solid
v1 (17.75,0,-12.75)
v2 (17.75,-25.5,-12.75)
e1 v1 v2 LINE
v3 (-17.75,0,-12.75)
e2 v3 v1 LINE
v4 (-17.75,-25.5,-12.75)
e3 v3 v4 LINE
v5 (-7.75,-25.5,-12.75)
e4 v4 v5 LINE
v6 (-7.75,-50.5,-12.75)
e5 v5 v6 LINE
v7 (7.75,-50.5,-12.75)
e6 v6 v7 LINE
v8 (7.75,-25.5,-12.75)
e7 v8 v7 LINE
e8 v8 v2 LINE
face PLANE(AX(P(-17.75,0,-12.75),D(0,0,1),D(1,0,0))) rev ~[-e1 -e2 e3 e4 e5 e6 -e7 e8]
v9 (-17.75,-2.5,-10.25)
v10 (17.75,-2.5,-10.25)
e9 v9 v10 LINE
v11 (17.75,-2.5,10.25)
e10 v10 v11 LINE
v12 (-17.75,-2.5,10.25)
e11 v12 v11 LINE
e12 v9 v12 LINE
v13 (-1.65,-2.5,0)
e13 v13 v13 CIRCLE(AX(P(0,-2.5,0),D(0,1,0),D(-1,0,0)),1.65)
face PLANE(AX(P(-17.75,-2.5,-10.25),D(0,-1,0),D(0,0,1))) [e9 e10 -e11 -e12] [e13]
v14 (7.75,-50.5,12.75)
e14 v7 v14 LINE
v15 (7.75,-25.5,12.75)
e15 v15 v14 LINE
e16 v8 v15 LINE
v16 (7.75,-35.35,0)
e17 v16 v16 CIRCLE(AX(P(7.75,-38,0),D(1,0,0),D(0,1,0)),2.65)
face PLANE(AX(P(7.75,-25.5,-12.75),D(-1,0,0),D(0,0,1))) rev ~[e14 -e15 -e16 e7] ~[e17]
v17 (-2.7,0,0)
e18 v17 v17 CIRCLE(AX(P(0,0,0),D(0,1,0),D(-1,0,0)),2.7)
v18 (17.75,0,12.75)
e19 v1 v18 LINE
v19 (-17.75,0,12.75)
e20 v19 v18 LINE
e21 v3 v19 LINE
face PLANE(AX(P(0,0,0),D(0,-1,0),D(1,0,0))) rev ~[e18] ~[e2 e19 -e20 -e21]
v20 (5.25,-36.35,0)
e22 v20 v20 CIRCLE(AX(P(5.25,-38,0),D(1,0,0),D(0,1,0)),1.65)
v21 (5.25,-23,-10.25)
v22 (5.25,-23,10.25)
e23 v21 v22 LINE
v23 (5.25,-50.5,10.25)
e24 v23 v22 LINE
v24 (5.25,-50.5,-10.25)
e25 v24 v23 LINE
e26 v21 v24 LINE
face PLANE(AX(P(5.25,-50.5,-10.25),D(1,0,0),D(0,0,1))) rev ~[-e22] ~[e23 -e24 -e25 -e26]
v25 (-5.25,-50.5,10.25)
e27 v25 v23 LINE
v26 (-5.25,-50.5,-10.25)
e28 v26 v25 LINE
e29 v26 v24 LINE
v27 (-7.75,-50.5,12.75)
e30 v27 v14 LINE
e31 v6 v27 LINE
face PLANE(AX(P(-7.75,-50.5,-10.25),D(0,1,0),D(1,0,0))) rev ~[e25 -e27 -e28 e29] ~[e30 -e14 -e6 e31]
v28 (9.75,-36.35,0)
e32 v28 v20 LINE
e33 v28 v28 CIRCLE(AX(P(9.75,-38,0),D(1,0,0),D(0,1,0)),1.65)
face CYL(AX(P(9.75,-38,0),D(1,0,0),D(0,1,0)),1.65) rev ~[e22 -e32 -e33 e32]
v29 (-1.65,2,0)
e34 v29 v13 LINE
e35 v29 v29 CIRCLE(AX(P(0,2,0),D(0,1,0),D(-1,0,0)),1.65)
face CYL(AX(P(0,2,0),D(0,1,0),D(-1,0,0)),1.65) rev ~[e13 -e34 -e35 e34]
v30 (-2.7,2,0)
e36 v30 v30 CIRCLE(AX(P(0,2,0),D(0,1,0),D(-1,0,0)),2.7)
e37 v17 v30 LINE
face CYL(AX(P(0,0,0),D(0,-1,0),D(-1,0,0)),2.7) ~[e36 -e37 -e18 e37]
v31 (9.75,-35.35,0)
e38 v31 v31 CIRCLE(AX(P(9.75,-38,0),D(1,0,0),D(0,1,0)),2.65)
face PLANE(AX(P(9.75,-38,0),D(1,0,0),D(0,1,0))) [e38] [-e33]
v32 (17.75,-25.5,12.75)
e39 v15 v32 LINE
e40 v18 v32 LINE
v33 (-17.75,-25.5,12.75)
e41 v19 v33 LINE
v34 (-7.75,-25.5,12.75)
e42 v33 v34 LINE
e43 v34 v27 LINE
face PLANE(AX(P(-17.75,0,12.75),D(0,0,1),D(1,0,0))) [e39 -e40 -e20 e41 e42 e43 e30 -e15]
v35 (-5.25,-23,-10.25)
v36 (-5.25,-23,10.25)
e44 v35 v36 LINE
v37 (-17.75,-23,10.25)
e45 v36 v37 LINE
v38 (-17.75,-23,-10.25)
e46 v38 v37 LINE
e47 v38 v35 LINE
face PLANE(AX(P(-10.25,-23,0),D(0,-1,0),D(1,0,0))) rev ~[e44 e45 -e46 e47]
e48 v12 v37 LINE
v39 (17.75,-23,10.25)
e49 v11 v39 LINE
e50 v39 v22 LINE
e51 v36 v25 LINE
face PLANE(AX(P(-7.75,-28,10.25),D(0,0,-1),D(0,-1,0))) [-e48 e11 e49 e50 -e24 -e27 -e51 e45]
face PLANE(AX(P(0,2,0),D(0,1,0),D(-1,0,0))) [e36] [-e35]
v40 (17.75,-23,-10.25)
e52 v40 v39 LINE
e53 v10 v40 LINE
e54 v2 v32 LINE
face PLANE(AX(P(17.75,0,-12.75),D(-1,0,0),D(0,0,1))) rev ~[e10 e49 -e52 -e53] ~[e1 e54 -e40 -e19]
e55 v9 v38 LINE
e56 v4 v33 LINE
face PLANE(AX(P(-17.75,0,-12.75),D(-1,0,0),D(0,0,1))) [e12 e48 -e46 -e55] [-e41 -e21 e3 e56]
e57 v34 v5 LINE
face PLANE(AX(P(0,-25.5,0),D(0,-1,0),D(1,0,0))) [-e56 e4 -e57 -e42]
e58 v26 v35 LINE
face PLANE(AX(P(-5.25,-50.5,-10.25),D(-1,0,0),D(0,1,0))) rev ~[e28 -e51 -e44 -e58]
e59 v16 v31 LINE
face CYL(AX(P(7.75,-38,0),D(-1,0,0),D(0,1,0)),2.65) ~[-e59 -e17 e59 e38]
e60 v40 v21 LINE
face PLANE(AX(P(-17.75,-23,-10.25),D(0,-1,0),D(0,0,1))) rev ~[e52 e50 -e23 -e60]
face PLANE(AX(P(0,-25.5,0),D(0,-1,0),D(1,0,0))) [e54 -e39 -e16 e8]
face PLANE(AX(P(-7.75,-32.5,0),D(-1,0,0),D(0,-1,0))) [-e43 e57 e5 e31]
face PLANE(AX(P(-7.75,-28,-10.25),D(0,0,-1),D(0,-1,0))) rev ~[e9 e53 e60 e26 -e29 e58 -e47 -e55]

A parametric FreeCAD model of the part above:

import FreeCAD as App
import Part
import Sketcher

doc = App.newDocument("Part")
body = doc.addObject("PartDesign::Body", "Body")

# Sketch on XZ plane
sketch1 = body.newObject("Sketcher::SketchObject", "Sketch")
sketch1.AttachmentSupport = (doc.getObject("XZ_Plane"), [""])
sketch1.MapMode = "FlatFace"
sketch1.addGeometry(Part.LineSegment(App.Vector(-18, 13, 0), App.Vector(-18, -13, 0)), False)
sketch1.addGeometry(Part.LineSegment(App.Vector(-18, -13, 0), App.Vector(18, -13, 0)), False)
sketch1.addGeometry(Part.LineSegment(App.Vector(18, -13, 0), App.Vector(18, 13, 0)), False)
sketch1.addGeometry(Part.LineSegment(App.Vector(18, 13, 0), App.Vector(-18, 13, 0)), False)
sketch1.addConstraint(Sketcher.Constraint("Coincident", 0, 2, 1, 1))
sketch1.addConstraint(Sketcher.Constraint("Coincident", 1, 2, 2, 1))
sketch1.addConstraint(Sketcher.Constraint("Coincident", 2, 2, 3, 1))
sketch1.addConstraint(Sketcher.Constraint("Coincident", 3, 2, 0, 1))
sketch1.addConstraint(Sketcher.Constraint("Vertical", 0))
sketch1.addConstraint(Sketcher.Constraint("Horizontal", 1))
sketch1.addConstraint(Sketcher.Constraint("Vertical", 2))
sketch1.addConstraint(Sketcher.Constraint("Horizontal", 3))
sketch1.addConstraint(Sketcher.Constraint("Symmetric", 0, 2, 2, 2, -1, 1))
sketch1.addConstraint(Sketcher.Constraint("DistanceX", 1, 1, 1, 2, 35.5))
sketch1.addConstraint(Sketcher.Constraint("DistanceY", 0, 2, 0, 1, 25.5))
pad1 = body.newObject("PartDesign::Pad", "Pad")
pad1.Profile = sketch1
pad1.Length = 25.5

# Sketch on YZ plane
sketch2 = body.newObject("Sketcher::SketchObject", "Sketch001")
sketch2.AttachmentSupport = (doc.getObject("YZ_Plane"), [""])
sketch2.MapMode = "FlatFace"
sketch2.AttachmentOffset = App.Placement(App.Vector(0, 0, -17.75), App.Rotation())
sketch2.addGeometry(Part.LineSegment(App.Vector(-2, 10, 0), App.Vector(-2, -10, 0)), False)
sketch2.addGeometry(Part.LineSegment(App.Vector(-2, -10, 0), App.Vector(-23, -10, 0)), False)
sketch2.addGeometry(Part.LineSegment(App.Vector(-23, -10, 0), App.Vector(-23, 10, 0)), False)
sketch2.addGeometry(Part.LineSegment(App.Vector(-23, 10, 0), App.Vector(-2, 10, 0)), False)
sketch2.addConstraint(Sketcher.Constraint("Coincident", 0, 2, 1, 1))
sketch2.addConstraint(Sketcher.Constraint("Coincident", 1, 2, 2, 1))
sketch2.addConstraint(Sketcher.Constraint("Coincident", 2, 2, 3, 1))
sketch2.addConstraint(Sketcher.Constraint("Coincident", 3, 2, 0, 1))
sketch2.addConstraint(Sketcher.Constraint("Vertical", 0))
sketch2.addConstraint(Sketcher.Constraint("Horizontal", 1))
sketch2.addConstraint(Sketcher.Constraint("Vertical", 2))
sketch2.addConstraint(Sketcher.Constraint("Horizontal", 3))
sketch2.addConstraint(Sketcher.Constraint("Equal", 3, 0))
sketch2.addConstraint(Sketcher.Constraint("DistanceX", 1, 2, 1, 1, 20.5))
sketch2.addConstraint(Sketcher.Constraint("DistanceX", 1, 2, -1, 1, 23.0))
sketch2.addConstraint(Sketcher.Constraint("DistanceY", 0, 2, -1, 1, 10.25))
pocket1 = body.newObject("PartDesign::Pocket", "Pocket")
pocket1.Profile = sketch2
pocket1.Length = 35.5
pocket1.Reversed = True

# Sketch on XZ plane
sketch3 = body.newObject("Sketcher::SketchObject", "Sketch002")
sketch3.AttachmentSupport = (doc.getObject("XZ_Plane"), [""])
sketch3.MapMode = "FlatFace"
sketch3.AttachmentOffset = App.Placement(App.Vector(0, 0, 25.5), App.Rotation())
sketch3.addGeometry(Part.LineSegment(App.Vector(-8, 13, 0), App.Vector(-8, -13, 0)), False)
sketch3.addGeometry(Part.LineSegment(App.Vector(-8, -13, 0), App.Vector(8, -13, 0)), False)
sketch3.addGeometry(Part.LineSegment(App.Vector(8, -13, 0), App.Vector(8, 13, 0)), False)
sketch3.addGeometry(Part.LineSegment(App.Vector(8, 13, 0), App.Vector(-8, 13, 0)), False)
sketch3.addConstraint(Sketcher.Constraint("Coincident", 0, 2, 1, 1))
sketch3.addConstraint(Sketcher.Constraint("Coincident", 1, 2, 2, 1))
sketch3.addConstraint(Sketcher.Constraint("Coincident", 2, 2, 3, 1))
sketch3.addConstraint(Sketcher.Constraint("Coincident", 3, 2, 0, 1))
sketch3.addConstraint(Sketcher.Constraint("Vertical", 0))
sketch3.addConstraint(Sketcher.Constraint("Horizontal", 1))
sketch3.addConstraint(Sketcher.Constraint("Vertical", 2))
sketch3.addConstraint(Sketcher.Constraint("Horizontal", 3))
sketch3.addConstraint(Sketcher.Constraint("Symmetric", 0, 2, 2, 2, -1, 1))
sketch3.addConstraint(Sketcher.Constraint("DistanceX", 1, 1, 1, 2, 15.5))
sketch3.addConstraint(Sketcher.Constraint("DistanceY", 0, 2, 0, 1, 25.5))
pad2 = body.newObject("PartDesign::Pad", "Pad001")
pad2.Profile = sketch3
pad2.Length = 25

# Sketch on XZ plane
sketch4 = body.newObject("Sketcher::SketchObject", "Sketch003")
sketch4.AttachmentSupport = (doc.getObject("XZ_Plane"), [""])
sketch4.MapMode = "FlatFace"
sketch4.AttachmentOffset = App.Placement(App.Vector(0, 0, 50.5), App.Rotation())
sketch4.addGeometry(Part.LineSegment(App.Vector(-15, 10, 0), App.Vector(-15, -10, 0)), False)
sketch4.addGeometry(Part.LineSegment(App.Vector(-15, -10, 0), App.Vector(5, -10, 0)), False)
sketch4.addGeometry(Part.LineSegment(App.Vector(5, -10, 0), App.Vector(5, 10, 0)), False)
sketch4.addGeometry(Part.LineSegment(App.Vector(5, 10, 0), App.Vector(-15, 10, 0)), False)
sketch4.addConstraint(Sketcher.Constraint("Coincident", 0, 2, 1, 1))
sketch4.addConstraint(Sketcher.Constraint("Coincident", 1, 2, 2, 1))
sketch4.addConstraint(Sketcher.Constraint("Coincident", 2, 2, 3, 1))
sketch4.addConstraint(Sketcher.Constraint("Coincident", 3, 2, 0, 1))
sketch4.addConstraint(Sketcher.Constraint("Vertical", 0))
sketch4.addConstraint(Sketcher.Constraint("Horizontal", 1))
sketch4.addConstraint(Sketcher.Constraint("Vertical", 2))
sketch4.addConstraint(Sketcher.Constraint("Horizontal", 3))
sketch4.addConstraint(Sketcher.Constraint("Equal", 3, 0))
sketch4.addConstraint(Sketcher.Constraint("DistanceX", 1, 1, 1, 2, 20.5))
sketch4.addConstraint(Sketcher.Constraint("DistanceX", 0, 2, -1, 1, 15.25))
sketch4.addConstraint(Sketcher.Constraint("DistanceY", 0, 2, -1, 1, 10.25))
pocket2 = body.newObject("PartDesign::Pocket", "Pocket001")
pocket2.Profile = sketch4
pocket2.Length = 38

# Sketch on YZ plane
sketch5 = body.newObject("Sketcher::SketchObject", "Sketch004")
sketch5.AttachmentSupport = (doc.getObject("YZ_Plane"), [""])
sketch5.MapMode = "FlatFace"
sketch5.AttachmentOffset = App.Placement(App.Vector(0, 0, 7.75), App.Rotation())
sketch5.addGeometry(Part.Circle(App.Vector(-38, 0, 0), App.Vector(0, 0, 1), 2.6), False)
sketch5.addConstraint(Sketcher.Constraint("PointOnObject", 0, 3, -1))
sketch5.addConstraint(Sketcher.Constraint("Diameter", 0, 5.3))
sketch5.addConstraint(Sketcher.Constraint("DistanceX", 0, 3, -1, 1, 38.0))
pad3 = body.newObject("PartDesign::Pad", "Pad002")
pad3.Profile = sketch5
pad3.Length = 2

# Sketch on YZ plane
sketch6 = body.newObject("Sketcher::SketchObject", "Sketch005")
sketch6.AttachmentSupport = (doc.getObject("YZ_Plane"), [""])
sketch6.MapMode = "FlatFace"
sketch6.AttachmentOffset = App.Placement(App.Vector(0, 0, 9.75), App.Rotation())
sketch6.addGeometry(Part.Circle(App.Vector(-38, 0, 0), App.Vector(0, 0, 1), 1.6), False)
sketch6.addConstraint(Sketcher.Constraint("PointOnObject", 0, 3, -1))
sketch6.addConstraint(Sketcher.Constraint("Diameter", 0, 3.3))
sketch6.addConstraint(Sketcher.Constraint("DistanceX", 0, 3, -1, 1, 38.0))
pocket3 = body.newObject("PartDesign::Pocket", "Pocket002")
pocket3.Profile = sketch6
pocket3.Type = "ThroughAll"

# Sketch on XZ plane
sketch7 = body.newObject("Sketcher::SketchObject", "Sketch006")
sketch7.AttachmentSupport = (doc.getObject("XZ_Plane"), [""])
sketch7.MapMode = "FlatFace"
sketch7.addGeometry(Part.Circle(App.Vector(0, 0, 0), App.Vector(0, 0, 1), 2.7), False)
sketch7.addConstraint(Sketcher.Constraint("Coincident", 0, 3, -1, 1))
sketch7.addConstraint(Sketcher.Constraint("Diameter", 0, 5.4))
pad4 = body.newObject("PartDesign::Pad", "Pad003")
pad4.Profile = sketch7
pad4.Length = 2
pad4.Reversed = True

# Sketch on XZ plane
sketch8 = body.newObject("Sketcher::SketchObject", "Sketch007")
sketch8.AttachmentSupport = (doc.getObject("XZ_Plane"), [""])
sketch8.MapMode = "FlatFace"
sketch8.AttachmentOffset = App.Placement(App.Vector(0, 0, -2), App.Rotation())
sketch8.addGeometry(Part.Circle(App.Vector(0, 0, 0), App.Vector(0, 0, 1), 1.6), False)
sketch8.addConstraint(Sketcher.Constraint("Coincident", 0, 3, -1, 1))
sketch8.addConstraint(Sketcher.Constraint("Diameter", 0, 3.3))
pocket4 = body.newObject("PartDesign::Pocket", "Pocket003")
pocket4.Profile = sketch8
pocket4.Length = 5.5
pocket4.Reversed = True

# Sketch on XY plane
sketch9 = body.newObject("Sketcher::SketchObject", "Sketch008")
sketch9.AttachmentSupport = (doc.getObject("XY_Plane"), [""])
sketch9.MapMode = "FlatFace"
sketch9.AttachmentOffset = App.Placement(App.Vector(0, 0, -10.25), App.Rotation())
sketch9.addGeometry(Part.LineSegment(App.Vector(-7.8, -25.5, 0), App.Vector(-7.8, -50.5, 0)), False)
sketch9.addGeometry(Part.LineSegment(App.Vector(-7.8, -50.5, 0), App.Vector(-5.2, -50.5, 0)), False)
sketch9.addGeometry(Part.LineSegment(App.Vector(-5.2, -50.5, 0), App.Vector(-5.2, -25.5, 0)), False)
sketch9.addGeometry(Part.LineSegment(App.Vector(-5.2, -25.5, 0), App.Vector(-7.8, -25.5, 0)), False)
sketch9.addConstraint(Sketcher.Constraint("Coincident", 0, 2, 1, 1))
sketch9.addConstraint(Sketcher.Constraint("Coincident", 1, 2, 2, 1))
sketch9.addConstraint(Sketcher.Constraint("Coincident", 2, 2, 3, 1))
sketch9.addConstraint(Sketcher.Constraint("Coincident", 3, 2, 0, 1))
sketch9.addConstraint(Sketcher.Constraint("Vertical", 0))
sketch9.addConstraint(Sketcher.Constraint("Horizontal", 1))
sketch9.addConstraint(Sketcher.Constraint("Vertical", 2))
sketch9.addConstraint(Sketcher.Constraint("Horizontal", 3))
sketch9.addConstraint(Sketcher.Constraint("DistanceY", 0, 2, 0, 1, 25.0))
sketch9.addConstraint(Sketcher.Constraint("DistanceX", 1, 1, 1, 2, 2.5))
sketch9.addConstraint(Sketcher.Constraint("DistanceY", 0, 2, -1, 1, 50.5))
sketch9.addConstraint(Sketcher.Constraint("DistanceX", 0, 2, -1, 1, 7.75))
pad5 = body.newObject("PartDesign::Pad", "Pad004")
pad5.Profile = sketch9
pad5.Length = 20.5

# Sketch on YZ plane
sketch10 = body.newObject("Sketcher::SketchObject", "Sketch009")
sketch10.AttachmentSupport = (doc.getObject("YZ_Plane"), [""])
sketch10.MapMode = "FlatFace"
sketch10.AttachmentOffset = App.Placement(App.Vector(0, 0, -7.75), App.Rotation())
sketch10.addGeometry(Part.LineSegment(App.Vector(-28, 10, 0), App.Vector(-28, -10, 0)), False)
sketch10.addGeometry(Part.LineSegment(App.Vector(-28, -10, 0), App.Vector(-48, -10, 0)), False)
sketch10.addGeometry(Part.LineSegment(App.Vector(-48, -10, 0), App.Vector(-48, 10, 0)), False)
sketch10.addGeometry(Part.LineSegment(App.Vector(-48, 10, 0), App.Vector(-28, 10, 0)), False)
sketch10.addConstraint(Sketcher.Constraint("Coincident", 0, 2, 1, 1))
sketch10.addConstraint(Sketcher.Constraint("Coincident", 1, 2, 2, 1))
sketch10.addConstraint(Sketcher.Constraint("Coincident", 2, 2, 3, 1))
sketch10.addConstraint(Sketcher.Constraint("Coincident", 3, 2, 0, 1))
sketch10.addConstraint(Sketcher.Constraint("Vertical", 0))
sketch10.addConstraint(Sketcher.Constraint("Horizontal", 1))
sketch10.addConstraint(Sketcher.Constraint("Vertical", 2))
sketch10.addConstraint(Sketcher.Constraint("Horizontal", 3))
sketch10.addConstraint(Sketcher.Constraint("DistanceX", 1, 2, 1, 1, 20.0))
sketch10.addConstraint(Sketcher.Constraint("DistanceY", 0, 2, 0, 1, 20.5))
sketch10.addConstraint(Sketcher.Constraint("DistanceX", 0, 2, -1, 1, 28.0))
sketch10.addConstraint(Sketcher.Constraint("DistanceY", 0, 2, -1, 1, 10.25))
pocket5 = body.newObject("PartDesign::Pocket", "Pocket004")
pocket5.Profile = sketch10
pocket5.Length = 2.5
pocket5.Reversed = True

# Sketch on XY plane
sketch11 = body.newObject("Sketcher::SketchObject", "Sketch010")
sketch11.AttachmentSupport = (doc.getObject("XY_Plane"), [""])
sketch11.MapMode = "FlatFace"
sketch11.AttachmentOffset = App.Placement(App.Vector(0, 0, -10.25), App.Rotation())
sketch11.addGeometry(Part.LineSegment(App.Vector(-7.8, -37, 0), App.Vector(-7.8, -39.5, 0)), False)
sketch11.addGeometry(Part.LineSegment(App.Vector(-7.8, -39.5, 0), App.Vector(-5.2, -39.5, 0)), False)
sketch11.addGeometry(Part.LineSegment(App.Vector(-5.2, -39.5, 0), App.Vector(-5.2, -37, 0)), False)
sketch11.addGeometry(Part.LineSegment(App.Vector(-5.2, -37, 0), App.Vector(-7.8, -37, 0)), False)
sketch11.addConstraint(Sketcher.Constraint("Coincident", 0, 2, 1, 1))
sketch11.addConstraint(Sketcher.Constraint("Coincident", 1, 2, 2, 1))
sketch11.addConstraint(Sketcher.Constraint("Coincident", 2, 2, 3, 1))
sketch11.addConstraint(Sketcher.Constraint("Coincident", 3, 2, 0, 1))
sketch11.addConstraint(Sketcher.Constraint("Vertical", 0))
sketch11.addConstraint(Sketcher.Constraint("Horizontal", 1))
sketch11.addConstraint(Sketcher.Constraint("Vertical", 2))
sketch11.addConstraint(Sketcher.Constraint("Horizontal", 3))
sketch11.addConstraint(Sketcher.Constraint("Equal", 3, 0))
sketch11.addConstraint(Sketcher.Constraint("DistanceX", 1, 1, 1, 2, 2.5))
sketch11.addConstraint(Sketcher.Constraint("DistanceY", 2, 2, -1, 1, 37.0))
sketch11.addConstraint(Sketcher.Constraint("DistanceX", 0, 2, -1, 1, 7.75))
pad6 = body.newObject("PartDesign::Pad", "Pad005")
pad6.Profile = sketch11
pad6.Length = 20.5

# Sketch on XZ plane
sketch12 = body.newObject("Sketcher::SketchObject", "Sketch011")
sketch12.AttachmentSupport = (doc.getObject("XZ_Plane"), [""])
sketch12.MapMode = "FlatFace"
sketch12.AttachmentOffset = App.Placement(App.Vector(0, 0, 25.5), App.Rotation())
sketch12.addGeometry(Part.LineSegment(App.Vector(8, 10, 0), App.Vector(8, -10, 0)), False)
sketch12.addGeometry(Part.LineSegment(App.Vector(8, -10, 0), App.Vector(15, -10, 0)), False)
sketch12.addGeometry(Part.LineSegment(App.Vector(15, -10, 0), App.Vector(15, 10, 0)), False)
sketch12.addGeometry(Part.LineSegment(App.Vector(15, 10, 0), App.Vector(8, 10, 0)), False)
sketch12.addConstraint(Sketcher.Constraint("Coincident", 0, 2, 1, 1))
sketch12.addConstraint(Sketcher.Constraint("Coincident", 1, 2, 2, 1))
sketch12.addConstraint(Sketcher.Constraint("Coincident", 2, 2, 3, 1))
sketch12.addConstraint(Sketcher.Constraint("Coincident", 3, 2, 0, 1))
sketch12.addConstraint(Sketcher.Constraint("Vertical", 0))
sketch12.addConstraint(Sketcher.Constraint("Horizontal", 1))
sketch12.addConstraint(Sketcher.Constraint("Vertical", 2))
sketch12.addConstraint(Sketcher.Constraint("Horizontal", 3))
sketch12.addConstraint(Sketcher.Constraint("DistanceX", 1, 1, 1, 2, 7.5))
sketch12.addConstraint(Sketcher.Constraint("DistanceY", 0, 2, 0, 1, 20.5))
sketch12.addConstraint(Sketcher.Constraint("DistanceX", -1, 1, 0, 2, 7.75))
sketch12.addConstraint(Sketcher.Constraint("DistanceY", 0, 2, -1, 1, 10.25))
pocket6 = body.newObject("PartDesign::Pocket", "Pocket005")
pocket6.Profile = sketch12
pocket6.Length = 2.5

# Sketch on XZ plane
sketch13 = body.newObject("Sketcher::SketchObject", "Sketch012")
sketch13.AttachmentSupport = (doc.getObject("XZ_Plane"), [""])
sketch13.MapMode = "FlatFace"
sketch13.AttachmentOffset = App.Placement(App.Vector(0, 0, 25.5), App.Rotation())
sketch13.addGeometry(Part.LineSegment(App.Vector(-15, 10, 0), App.Vector(-15, -10, 0)), False)
sketch13.addGeometry(Part.LineSegment(App.Vector(-15, -10, 0), App.Vector(-5, -10, 0)), False)
sketch13.addGeometry(Part.LineSegment(App.Vector(-5, -10, 0), App.Vector(-5, 10, 0)), False)
sketch13.addGeometry(Part.LineSegment(App.Vector(-5, 10, 0), App.Vector(-15, 10, 0)), False)
sketch13.addConstraint(Sketcher.Constraint("Coincident", 0, 2, 1, 1))
sketch13.addConstraint(Sketcher.Constraint("Coincident", 1, 2, 2, 1))
sketch13.addConstraint(Sketcher.Constraint("Coincident", 2, 2, 3, 1))
sketch13.addConstraint(Sketcher.Constraint("Coincident", 3, 2, 0, 1))
sketch13.addConstraint(Sketcher.Constraint("Vertical", 0))
sketch13.addConstraint(Sketcher.Constraint("Horizontal", 1))
sketch13.addConstraint(Sketcher.Constraint("Vertical", 2))
sketch13.addConstraint(Sketcher.Constraint("Horizontal", 3))
sketch13.addConstraint(Sketcher.Constraint("DistanceX", 1, 1, 1, 2, 10.0))
sketch13.addConstraint(Sketcher.Constraint("DistanceY", 0, 2, 0, 1, 20.5))
sketch13.addConstraint(Sketcher.Constraint("DistanceX", 0, 2, -1, 1, 15.25))
sketch13.addConstraint(Sketcher.Constraint("DistanceY", 0, 2, -1, 1, 10.25))
pad7 = body.newObject("PartDesign::Pad", "Pad006")
pad7.Profile = sketch13
pad7.Length = 2.5
pad7.Reversed = True

# Sketch on XZ plane
sketch14 = body.newObject("Sketcher::SketchObject", "Sketch013")
sketch14.AttachmentSupport = (doc.getObject("XZ_Plane"), [""])
sketch14.MapMode = "FlatFace"
sketch14.AttachmentOffset = App.Placement(App.Vector(0, 0, 25.5), App.Rotation())
sketch14.addGeometry(Part.LineSegment(App.Vector(5, 10, 0), App.Vector(5, -10, 0)), False)
sketch14.addGeometry(Part.LineSegment(App.Vector(5, -10, 0), App.Vector(15, -10, 0)), False)
sketch14.addGeometry(Part.LineSegment(App.Vector(15, -10, 0), App.Vector(15, 10, 0)), False)
sketch14.addGeometry(Part.LineSegment(App.Vector(15, 10, 0), App.Vector(5, 10, 0)), False)
sketch14.addConstraint(Sketcher.Constraint("Coincident", 0, 2, 1, 1))
sketch14.addConstraint(Sketcher.Constraint("Coincident", 1, 2, 2, 1))
sketch14.addConstraint(Sketcher.Constraint("Coincident", 2, 2, 3, 1))
sketch14.addConstraint(Sketcher.Constraint("Coincident", 3, 2, 0, 1))
sketch14.addConstraint(Sketcher.Constraint("Vertical", 0))
sketch14.addConstraint(Sketcher.Constraint("Horizontal", 1))
sketch14.addConstraint(Sketcher.Constraint("Vertical", 2))
sketch14.addConstraint(Sketcher.Constraint("Horizontal", 3))
sketch14.addConstraint(Sketcher.Constraint("DistanceX", 1, 1, 1, 2, 10.0))
sketch14.addConstraint(Sketcher.Constraint("DistanceY", 0, 2, 0, 1, 20.5))
sketch14.addConstraint(Sketcher.Constraint("DistanceX", -1, 1, 0, 2, 5.25))
sketch14.addConstraint(Sketcher.Constraint("DistanceY", 0, 2, -1, 1, 10.25))
pad8 = body.newObject("PartDesign::Pad", "Pad007")
pad8.Profile = sketch14
pad8.Length = 2.5
pad8.Reversed = True

# Sketch on YZ plane
sketch15 = body.newObject("Sketcher::SketchObject", "Sketch014")
sketch15.AttachmentSupport = (doc.getObject("YZ_Plane"), [""])
sketch15.MapMode = "FlatFace"
sketch15.AttachmentOffset = App.Placement(App.Vector(0, 0, -7.75), App.Rotation())
sketch15.addGeometry(Part.LineSegment(App.Vector(-28, 10, 0), App.Vector(-28, -10, 0)), False)
sketch15.addGeometry(Part.LineSegment(App.Vector(-28, -10, 0), App.Vector(-37, -10, 0)), False)
sketch15.addGeometry(Part.LineSegment(App.Vector(-37, -10, 0), App.Vector(-37, 10, 0)), False)
sketch15.addGeometry(Part.LineSegment(App.Vector(-37, 10, 0), App.Vector(-28, 10, 0)), False)
sketch15.addGeometry(Part.LineSegment(App.Vector(-40, 10, 0), App.Vector(-40, -10, 0)), False)
sketch15.addGeometry(Part.LineSegment(App.Vector(-40, -10, 0), App.Vector(-48, -10, 0)), False)
sketch15.addGeometry(Part.LineSegment(App.Vector(-48, -10, 0), App.Vector(-48, 10, 0)), False)
sketch15.addGeometry(Part.LineSegment(App.Vector(-48, 10, 0), App.Vector(-40, 10, 0)), False)
sketch15.addConstraint(Sketcher.Constraint("Coincident", 0, 2, 1, 1))
sketch15.addConstraint(Sketcher.Constraint("Coincident", 1, 2, 2, 1))
sketch15.addConstraint(Sketcher.Constraint("Coincident", 2, 2, 3, 1))
sketch15.addConstraint(Sketcher.Constraint("Coincident", 3, 2, 0, 1))
sketch15.addConstraint(Sketcher.Constraint("Coincident", 4, 2, 5, 1))
sketch15.addConstraint(Sketcher.Constraint("Coincident", 5, 2, 6, 1))
sketch15.addConstraint(Sketcher.Constraint("Coincident", 6, 2, 7, 1))
sketch15.addConstraint(Sketcher.Constraint("Coincident", 7, 2, 4, 1))
sketch15.addConstraint(Sketcher.Constraint("Vertical", 0))
sketch15.addConstraint(Sketcher.Constraint("Horizontal", 1))
sketch15.addConstraint(Sketcher.Constraint("Vertical", 2))
sketch15.addConstraint(Sketcher.Constraint("Horizontal", 3))
sketch15.addConstraint(Sketcher.Constraint("Vertical", 4))
sketch15.addConstraint(Sketcher.Constraint("Horizontal", 5))
sketch15.addConstraint(Sketcher.Constraint("Vertical", 6))
sketch15.addConstraint(Sketcher.Constraint("Horizontal", 7))
sketch15.addConstraint(Sketcher.Constraint("Horizontal", 1, 2, 4, 2))
sketch15.addConstraint(Sketcher.Constraint("Horizontal", 3, 2, 6, 2))
sketch15.addConstraint(Sketcher.Constraint("DistanceX", 1, 2, 1, 1, 9.0))
sketch15.addConstraint(Sketcher.Constraint("DistanceX", 5, 2, 5, 1, 8.5))
sketch15.addConstraint(Sketcher.Constraint("DistanceY", 0, 2, 0, 1, 20.5))
sketch15.addConstraint(Sketcher.Constraint("DistanceX", 0, 2, -1, 1, 28.0))
sketch15.addConstraint(Sketcher.Constraint("DistanceX", 5, 2, -1, 1, 48.0))
sketch15.addConstraint(Sketcher.Constraint("DistanceY", 0, 2, -1, 1, 10.25))
pad9 = body.newObject("PartDesign::Pad", "Pad008")
pad9.Profile = sketch15
pad9.Length = 2.5

doc.recompute()
